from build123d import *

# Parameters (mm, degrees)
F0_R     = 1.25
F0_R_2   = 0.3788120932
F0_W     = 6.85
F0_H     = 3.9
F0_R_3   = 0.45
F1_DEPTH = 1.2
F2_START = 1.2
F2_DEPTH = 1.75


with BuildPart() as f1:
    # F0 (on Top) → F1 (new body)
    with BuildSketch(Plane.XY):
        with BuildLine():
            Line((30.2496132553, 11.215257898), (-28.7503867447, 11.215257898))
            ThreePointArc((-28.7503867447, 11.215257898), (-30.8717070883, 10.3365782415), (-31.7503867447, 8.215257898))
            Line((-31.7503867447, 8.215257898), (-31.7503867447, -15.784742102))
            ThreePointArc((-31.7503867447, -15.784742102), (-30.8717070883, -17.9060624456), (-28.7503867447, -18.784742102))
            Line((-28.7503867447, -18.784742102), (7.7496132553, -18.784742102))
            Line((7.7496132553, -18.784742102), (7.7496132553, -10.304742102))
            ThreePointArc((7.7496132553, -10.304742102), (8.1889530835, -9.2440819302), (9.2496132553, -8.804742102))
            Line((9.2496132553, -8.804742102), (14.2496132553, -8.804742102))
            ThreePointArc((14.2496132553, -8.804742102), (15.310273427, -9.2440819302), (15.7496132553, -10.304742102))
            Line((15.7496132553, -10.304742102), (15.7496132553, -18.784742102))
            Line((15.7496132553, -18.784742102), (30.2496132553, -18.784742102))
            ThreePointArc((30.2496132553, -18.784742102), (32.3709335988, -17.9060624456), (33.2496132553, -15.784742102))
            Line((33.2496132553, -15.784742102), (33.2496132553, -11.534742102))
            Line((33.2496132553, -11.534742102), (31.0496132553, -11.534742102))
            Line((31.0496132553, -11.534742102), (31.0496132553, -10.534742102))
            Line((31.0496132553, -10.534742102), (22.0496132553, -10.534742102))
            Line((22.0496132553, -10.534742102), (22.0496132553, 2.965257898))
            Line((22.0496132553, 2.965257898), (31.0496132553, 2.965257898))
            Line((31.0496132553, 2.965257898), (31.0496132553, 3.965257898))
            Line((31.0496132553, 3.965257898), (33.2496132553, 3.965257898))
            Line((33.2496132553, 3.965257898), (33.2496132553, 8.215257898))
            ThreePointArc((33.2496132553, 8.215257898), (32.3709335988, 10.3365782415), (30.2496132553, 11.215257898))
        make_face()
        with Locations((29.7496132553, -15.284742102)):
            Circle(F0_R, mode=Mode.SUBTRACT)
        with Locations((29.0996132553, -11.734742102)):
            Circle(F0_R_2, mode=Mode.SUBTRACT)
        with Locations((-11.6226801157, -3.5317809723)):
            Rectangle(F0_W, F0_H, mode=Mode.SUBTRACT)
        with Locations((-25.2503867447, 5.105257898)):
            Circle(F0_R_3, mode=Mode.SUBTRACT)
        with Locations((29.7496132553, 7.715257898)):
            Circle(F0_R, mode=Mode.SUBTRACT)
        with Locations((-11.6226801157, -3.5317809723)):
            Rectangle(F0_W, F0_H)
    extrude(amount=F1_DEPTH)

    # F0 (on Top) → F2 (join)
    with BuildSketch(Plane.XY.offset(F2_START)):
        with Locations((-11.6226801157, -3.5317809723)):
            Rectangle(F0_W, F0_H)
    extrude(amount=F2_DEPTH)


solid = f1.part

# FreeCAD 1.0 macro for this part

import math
import FreeCAD as App
import Part
import Sketcher

doc = App.newDocument("Part")
params = doc.addObject("Spreadsheet::Sheet", "Params")
for row, (alias, value) in enumerate([
    ("sketch1_radius", "3 mm"),
    ("sketch1_diameter", "2.5 mm"),
    ("sketch1_diameter2", "0.9 mm"),
    ("sketch1_radius2", "1.5 mm"),
    ("sketch1_width", "59 mm"),
    ("pad1_length", "1.2 mm"),
    ("sketch2_height", "3.9 mm"),
    ("sketch2_width", "6.85 mm"),
    ("pad2_length", "1.75 mm"),
], start=1):
    params.set(f"A{row}", alias)
    params.set(f"B{row}", "=" + value)
    params.setAlias(f"B{row}", alias)

body = doc.addObject("PartDesign::Body", "Body")

# Sketch on XY plane
sketch1 = doc.addObject("Sketcher::SketchObject", "Sketch")
body.addObject(sketch1)
sketch1.AttachmentSupport = (doc.XY_Plane, [""])
sketch1.MapMode = "FlatFace"
sketch1.addGeometry(Part.LineSegment(App.Vector(30.249613, 11.215258, 0), App.Vector(-28.750387, 11.215258, 0)), False)
sketch1.addGeometry(Part.ArcOfCircle(Part.Circle(App.Vector(-28.750387, 8.215258, 0), App.Vector(0, 0, 1), 3), math.radians(90), math.radians(180)), False)
sketch1.addGeometry(Part.LineSegment(App.Vector(-31.750387, 8.215258, 0), App.Vector(-31.750387, -15.784742, 0)), False)
sketch1.addGeometry(Part.ArcOfCircle(Part.Circle(App.Vector(-28.750387, -15.784742, 0), App.Vector(0, 0, 1), 3), math.radians(180), math.radians(270)), False)
sketch1.addGeometry(Part.LineSegment(App.Vector(-28.750387, -18.784742, 0), App.Vector(7.749613, -18.784742, 0)), False)
sketch1.addGeometry(Part.LineSegment(App.Vector(7.749613, -18.784742, 0), App.Vector(7.749613, -10.304742, 0)), False)
sketch1.addGeometry(Part.ArcOfCircle(Part.Circle(App.Vector(9.249613, -10.304742, 0), App.Vector(0, 0, 1), 1.5), math.radians(90), math.radians(180)), False)
sketch1.addGeometry(Part.LineSegment(App.Vector(9.249613, -8.804742, 0), App.Vector(14.249613, -8.804742, 0)), False)
sketch1.addGeometry(Part.ArcOfCircle(Part.Circle(App.Vector(14.249613, -10.304742, 0), App.Vector(0, 0, 1), 1.5), math.radians(0), math.radians(90)), False)
sketch1.addGeometry(Part.LineSegment(App.Vector(15.749613, -10.304742, 0), App.Vector(15.749613, -18.784742, 0)), False)
sketch1.addGeometry(Part.LineSegment(App.Vector(15.749613, -18.784742, 0), App.Vector(30.249613, -18.784742, 0)), False)
sketch1.addGeometry(Part.ArcOfCircle(Part.Circle(App.Vector(30.249613, -15.784742, 0), App.Vector(0, 0, 1), 3), math.radians(-90), math.radians(0)), False)
sketch1.addGeometry(Part.LineSegment(App.Vector(33.249613, -15.784742, 0), App.Vector(33.249613, -11.534742, 0)), False)
sketch1.addGeometry(Part.LineSegment(App.Vector(33.249613, -11.534742, 0), App.Vector(31.049613, -11.534742, 0)), False)
sketch1.addGeometry(Part.LineSegment(App.Vector(31.049613, -11.534742, 0), App.Vector(31.049613, -10.534742, 0)), False)
sketch1.addGeometry(Part.LineSegment(App.Vector(31.049613, -10.534742, 0), App.Vector(22.049613, -10.534742, 0)), False)
sketch1.addGeometry(Part.LineSegment(App.Vector(22.049613, -10.534742, 0), App.Vector(22.049613, 2.965258, 0)), False)
sketch1.addGeometry(Part.LineSegment(App.Vector(22.049613, 2.965258, 0), App.Vector(31.049613, 2.965258, 0)), False)
sketch1.addGeometry(Part.LineSegment(App.Vector(31.049613, 2.965258, 0), App.Vector(31.049613, 3.965258, 0)), False)
sketch1.addGeometry(Part.LineSegment(App.Vector(31.049613, 3.965258, 0), App.Vector(33.249613, 3.965258, 0)), False)
sketch1.addGeometry(Part.LineSegment(App.Vector(33.249613, 3.965258, 0), App.Vector(33.249613, 8.215258, 0)), False)
sketch1.addGeometry(Part.ArcOfCircle(Part.Circle(App.Vector(30.249613, 8.215258, 0), App.Vector(0, 0, 1), 3), math.radians(0), math.radians(90)), False)
sketch1.addGeometry(Part.Circle(App.Vector(29.749613, -15.284742, 0), App.Vector(0, 0, 1), 1.25), False)
sketch1.addGeometry(Part.Circle(App.Vector(29.099613, -11.734742, 0), App.Vector(0, 0, 1), 0.378812), False)
sketch1.addGeometry(Part.Circle(App.Vector(-25.250387, 5.105258, 0), App.Vector(0, 0, 1), 0.45), False)
sketch1.addGeometry(Part.Circle(App.Vector(29.749613, 7.715258, 0), App.Vector(0, 0, 1), 1.25), False)
sketch1.addConstraint(Sketcher.Constraint("Tangent", 0, 2, 1, 1))
sketch1.addConstraint(Sketcher.Constraint("Tangent", 1, 2, 2, 1))
sketch1.addConstraint(Sketcher.Constraint("Tangent", 2, 2, 3, 1))
sketch1.addConstraint(Sketcher.Constraint("Tangent", 3, 2, 4, 1))
sketch1.addConstraint(Sketcher.Constraint("Coincident", 4, 2, 5, 1))
sketch1.addConstraint(Sketcher.Constraint("Tangent", 5, 2, 6, 2))
sketch1.addConstraint(Sketcher.Constraint("Tangent", 6, 1, 7, 1))
sketch1.addConstraint(Sketcher.Constraint("Tangent", 7, 2, 8, 2))
sketch1.addConstraint(Sketcher.Constraint("Tangent", 8, 1, 9, 1))
sketch1.addConstraint(Sketcher.Constraint("Coincident", 9, 2, 10, 1))
sketch1.addConstraint(Sketcher.Constraint("Tangent", 10, 2, 11, 1))
sketch1.addConstraint(Sketcher.Constraint("Tangent", 11, 2, 12, 1))
sketch1.addConstraint(Sketcher.Constraint("Coincident", 12, 2, 13, 1))
sketch1.addConstraint(Sketcher.Constraint("Coincident", 13, 2, 14, 1))
sketch1.addConstraint(Sketcher.Constraint("Coincident", 14, 2, 15, 1))
sketch1.addConstraint(Sketcher.Constraint("Coincident", 15, 2, 16, 1))
sketch1.addConstraint(Sketcher.Constraint("Coincident", 16, 2, 17, 1))
sketch1.addConstraint(Sketcher.Constraint("Coincident", 17, 2, 18, 1))
sketch1.addConstraint(Sketcher.Constraint("Coincident", 18, 2, 19, 1))
sketch1.addConstraint(Sketcher.Constraint("Coincident", 19, 2, 20, 1))
sketch1.addConstraint(Sketcher.Constraint("Tangent", 20, 2, 21, 1))
sketch1.addConstraint(Sketcher.Constraint("Tangent", 21, 2, 0, 1))
sketch1.addConstraint(Sketcher.Constraint("Horizontal", 0))
sketch1.addConstraint(Sketcher.Constraint("Vertical", 2))
sketch1.addConstraint(Sketcher.Constraint("Horizontal", 4))
sketch1.addConstraint(Sketcher.Constraint("Vertical", 5))
sketch1.addConstraint(Sketcher.Constraint("Horizontal", 7))
sketch1.addConstraint(Sketcher.Constraint("Vertical", 9))
sketch1.addConstraint(Sketcher.Constraint("Horizontal", 10))
sketch1.addConstraint(Sketcher.Constraint("Vertical", 12))
sketch1.addConstraint(Sketcher.Constraint("Horizontal", 13))
sketch1.addConstraint(Sketcher.Constraint("Vertical", 14))
sketch1.addConstraint(Sketcher.Constraint("Horizontal", 15))
sketch1.addConstraint(Sketcher.Constraint("Vertical", 16))
sketch1.addConstraint(Sketcher.Constraint("Horizontal", 17))
sketch1.addConstraint(Sketcher.Constraint("Vertical", 18))
sketch1.addConstraint(Sketcher.Constraint("Horizontal", 19))
sketch1.addConstraint(Sketcher.Constraint("Vertical", 20))
sketch1.addConstraint(Sketcher.Constraint("Equal", 1, 3))
sketch1.addConstraint(Sketcher.Constraint("Equal", 6, 8))
sketch1.addConstraint(Sketcher.Constraint("Equal", 3, 11))
sketch1.addConstraint(Sketcher.Constraint("Equal", 11, 21))
sketch1.addConstraint(Sketcher.Constraint("Equal", 22, 25))
sketch1.addConstraint(Sketcher.Constraint("Horizontal", 3, 3, 11, 3))
sketch1.addConstraint(Sketcher.Constraint("Vertical", 11, 3, 21, 3))
sketch1.addConstraint(Sketcher.Constraint("Vertical", 22, 3, 25, 3))
sketch1.addConstraint(Sketcher.Constraint("Vertical", 14, 2, 17, 2))
sketch1.addConstraint(Sketcher.Constraint("Equal", 14, 18))
sketch1.addConstraint(Sketcher.Constraint("Equal", 12, 20))
sketch1.addConstraint(Sketcher.Constraint("Radius", 1, 3.0))
sketch1.addConstraint(Sketcher.Constraint("Diameter", 22, 2.5))
sketch1.addConstraint(Sketcher.Constraint("Diameter", 24, 0.9))
sketch1.addConstraint(Sketcher.Constraint("Radius", 6, 1.5))
sketch1.addConstraint(Sketcher.Constraint("DistanceX", 0, 2, 0, 1, 59.0))
sketch1.addConstraint(Sketcher.Constraint("DistanceX", 7, 1, 7, 2, 5.0))
sketch1.addConstraint(Sketcher.Constraint("DistanceX", 15, 2, 15, 1, 9.0))
sketch1.addConstraint(Sketcher.Constraint("DistanceY", 2, 2, 2, 1, 24.0))
sketch1.addConstraint(Sketcher.Constraint("DistanceY", 14, 1, 14, 2, 1.0))
sketch1.addConstraint(Sketcher.Constraint("DistanceX", 4, 1, 4, 2, 36.5))
sketch1.addConstraint(Sketcher.Constraint("DistanceX", 13, 2, 13, 1, 2.2))
sketch1.addConstraint(Sketcher.Constraint("DistanceY", 16, 1, 16, 2, 13.5))
sketch1.addConstraint(Sketcher.Constraint("DistanceY", 22, 3, 25, 3, 23.0))
sketch1.addConstraint(Sketcher.Constraint("DistanceX", 4, 2, 22, 3, 22.0))
sketch1.addConstraint(Sketcher.Constraint("DistanceY", 5, 1, 5, 2, 8.48))
sketch1.addConstraint(Sketcher.Constraint("DistanceY", 11, 3, 22, 3, 0.5))
sketch1.addConstraint(Sketcher.Constraint("DistanceX", 1, 3, 24, 3, 3.5))
sketch1.addConstraint(Sketcher.Constraint("DistanceY", 23, 3, 12, 2, 0.2))
sketch1.addConstraint(Sketcher.Constraint("DistanceX", 23, 3, 22, 3, 0.65))
sketch1.addConstraint(Sketcher.Constraint("DistanceY", 24, 3, 1, 3, 3.11))
sketch1.addConstraint(Sketcher.Constraint("Diameter", 23, 0.757624))
sketch1.addConstraint(Sketcher.Constraint("DistanceX", 1, 3, -1, 1, 28.750387))
sketch1.addConstraint(Sketcher.Constraint("DistanceY", -1, 1, 1, 3, 8.215258))
sketch1.setExpression("Constraints[49]", "Params.sketch1_radius")
sketch1.setExpression("Constraints[50]", "Params.sketch1_diameter")
sketch1.setExpression("Constraints[51]", "Params.sketch1_diameter2")
sketch1.setExpression("Constraints[52]", "Params.sketch1_radius2")
sketch1.setExpression("Constraints[53]", "Params.sketch1_width")
pad1 = doc.addObject("PartDesign::Pad", "Pad")
body.addObject(pad1)
pad1.Profile = sketch1
pad1.setExpression("Length", "Params.pad1_length")

# Sketch on XY plane
sketch2 = doc.addObject("Sketcher::SketchObject", "Sketch001")
body.addObject(sketch2)
sketch2.AttachmentSupport = (doc.XY_Plane, [""])
sketch2.MapMode = "FlatFace"
sketch2.AttachmentOffset = App.Placement(App.Vector(0, 0, 1.2), App.Rotation())
sketch2.addGeometry(Part.LineSegment(App.Vector(-15.04768, -1.581781, 0), App.Vector(-15.04768, -5.481781, 0)), False)
sketch2.addGeometry(Part.LineSegment(App.Vector(-15.04768, -5.481781, 0), App.Vector(-8.19768, -5.481781, 0)), False)
sketch2.addGeometry(Part.LineSegment(App.Vector(-8.19768, -5.481781, 0), App.Vector(-8.19768, -1.581781, 0)), False)
sketch2.addGeometry(Part.LineSegment(App.Vector(-8.19768, -1.581781, 0), App.Vector(-15.04768, -1.581781, 0)), False)
sketch2.addConstraint(Sketcher.Constraint("Coincident", 0, 2, 1, 1))
sketch2.addConstraint(Sketcher.Constraint("Coincident", 1, 2, 2, 1))
sketch2.addConstraint(Sketcher.Constraint("Coincident", 2, 2, 3, 1))
sketch2.addConstraint(Sketcher.Constraint("Coincident", 3, 2, 0, 1))
sketch2.addConstraint(Sketcher.Constraint("Vertical", 0))
sketch2.addConstraint(Sketcher.Constraint("Horizontal", 1))
sketch2.addConstraint(Sketcher.Constraint("Vertical", 2))
sketch2.addConstraint(Sketcher.Constraint("Horizontal", 3))
sketch2.addConstraint(Sketcher.Constraint("DistanceY", 0, 2, 0, 1, 3.9))
sketch2.addConstraint(Sketcher.Constraint("DistanceX", 1, 1, 1, 2, 6.85))
sketch2.addConstraint(Sketcher.Constraint("DistanceX", 0, 2, -1, 1, 15.04768))
sketch2.addConstraint(Sketcher.Constraint("DistanceY", 0, 2, -1, 1, 5.481781))
sketch2.setExpression("Constraints[8]", "Params.sketch2_height")
sketch2.setExpression("Constraints[9]", "Params.sketch2_width")
pad2 = doc.addObject("PartDesign::Pad", "Pad001")
body.addObject(pad2)
pad2.Profile = sketch2
pad2.setExpression("Length", "Params.pad2_length")

doc.recompute()
